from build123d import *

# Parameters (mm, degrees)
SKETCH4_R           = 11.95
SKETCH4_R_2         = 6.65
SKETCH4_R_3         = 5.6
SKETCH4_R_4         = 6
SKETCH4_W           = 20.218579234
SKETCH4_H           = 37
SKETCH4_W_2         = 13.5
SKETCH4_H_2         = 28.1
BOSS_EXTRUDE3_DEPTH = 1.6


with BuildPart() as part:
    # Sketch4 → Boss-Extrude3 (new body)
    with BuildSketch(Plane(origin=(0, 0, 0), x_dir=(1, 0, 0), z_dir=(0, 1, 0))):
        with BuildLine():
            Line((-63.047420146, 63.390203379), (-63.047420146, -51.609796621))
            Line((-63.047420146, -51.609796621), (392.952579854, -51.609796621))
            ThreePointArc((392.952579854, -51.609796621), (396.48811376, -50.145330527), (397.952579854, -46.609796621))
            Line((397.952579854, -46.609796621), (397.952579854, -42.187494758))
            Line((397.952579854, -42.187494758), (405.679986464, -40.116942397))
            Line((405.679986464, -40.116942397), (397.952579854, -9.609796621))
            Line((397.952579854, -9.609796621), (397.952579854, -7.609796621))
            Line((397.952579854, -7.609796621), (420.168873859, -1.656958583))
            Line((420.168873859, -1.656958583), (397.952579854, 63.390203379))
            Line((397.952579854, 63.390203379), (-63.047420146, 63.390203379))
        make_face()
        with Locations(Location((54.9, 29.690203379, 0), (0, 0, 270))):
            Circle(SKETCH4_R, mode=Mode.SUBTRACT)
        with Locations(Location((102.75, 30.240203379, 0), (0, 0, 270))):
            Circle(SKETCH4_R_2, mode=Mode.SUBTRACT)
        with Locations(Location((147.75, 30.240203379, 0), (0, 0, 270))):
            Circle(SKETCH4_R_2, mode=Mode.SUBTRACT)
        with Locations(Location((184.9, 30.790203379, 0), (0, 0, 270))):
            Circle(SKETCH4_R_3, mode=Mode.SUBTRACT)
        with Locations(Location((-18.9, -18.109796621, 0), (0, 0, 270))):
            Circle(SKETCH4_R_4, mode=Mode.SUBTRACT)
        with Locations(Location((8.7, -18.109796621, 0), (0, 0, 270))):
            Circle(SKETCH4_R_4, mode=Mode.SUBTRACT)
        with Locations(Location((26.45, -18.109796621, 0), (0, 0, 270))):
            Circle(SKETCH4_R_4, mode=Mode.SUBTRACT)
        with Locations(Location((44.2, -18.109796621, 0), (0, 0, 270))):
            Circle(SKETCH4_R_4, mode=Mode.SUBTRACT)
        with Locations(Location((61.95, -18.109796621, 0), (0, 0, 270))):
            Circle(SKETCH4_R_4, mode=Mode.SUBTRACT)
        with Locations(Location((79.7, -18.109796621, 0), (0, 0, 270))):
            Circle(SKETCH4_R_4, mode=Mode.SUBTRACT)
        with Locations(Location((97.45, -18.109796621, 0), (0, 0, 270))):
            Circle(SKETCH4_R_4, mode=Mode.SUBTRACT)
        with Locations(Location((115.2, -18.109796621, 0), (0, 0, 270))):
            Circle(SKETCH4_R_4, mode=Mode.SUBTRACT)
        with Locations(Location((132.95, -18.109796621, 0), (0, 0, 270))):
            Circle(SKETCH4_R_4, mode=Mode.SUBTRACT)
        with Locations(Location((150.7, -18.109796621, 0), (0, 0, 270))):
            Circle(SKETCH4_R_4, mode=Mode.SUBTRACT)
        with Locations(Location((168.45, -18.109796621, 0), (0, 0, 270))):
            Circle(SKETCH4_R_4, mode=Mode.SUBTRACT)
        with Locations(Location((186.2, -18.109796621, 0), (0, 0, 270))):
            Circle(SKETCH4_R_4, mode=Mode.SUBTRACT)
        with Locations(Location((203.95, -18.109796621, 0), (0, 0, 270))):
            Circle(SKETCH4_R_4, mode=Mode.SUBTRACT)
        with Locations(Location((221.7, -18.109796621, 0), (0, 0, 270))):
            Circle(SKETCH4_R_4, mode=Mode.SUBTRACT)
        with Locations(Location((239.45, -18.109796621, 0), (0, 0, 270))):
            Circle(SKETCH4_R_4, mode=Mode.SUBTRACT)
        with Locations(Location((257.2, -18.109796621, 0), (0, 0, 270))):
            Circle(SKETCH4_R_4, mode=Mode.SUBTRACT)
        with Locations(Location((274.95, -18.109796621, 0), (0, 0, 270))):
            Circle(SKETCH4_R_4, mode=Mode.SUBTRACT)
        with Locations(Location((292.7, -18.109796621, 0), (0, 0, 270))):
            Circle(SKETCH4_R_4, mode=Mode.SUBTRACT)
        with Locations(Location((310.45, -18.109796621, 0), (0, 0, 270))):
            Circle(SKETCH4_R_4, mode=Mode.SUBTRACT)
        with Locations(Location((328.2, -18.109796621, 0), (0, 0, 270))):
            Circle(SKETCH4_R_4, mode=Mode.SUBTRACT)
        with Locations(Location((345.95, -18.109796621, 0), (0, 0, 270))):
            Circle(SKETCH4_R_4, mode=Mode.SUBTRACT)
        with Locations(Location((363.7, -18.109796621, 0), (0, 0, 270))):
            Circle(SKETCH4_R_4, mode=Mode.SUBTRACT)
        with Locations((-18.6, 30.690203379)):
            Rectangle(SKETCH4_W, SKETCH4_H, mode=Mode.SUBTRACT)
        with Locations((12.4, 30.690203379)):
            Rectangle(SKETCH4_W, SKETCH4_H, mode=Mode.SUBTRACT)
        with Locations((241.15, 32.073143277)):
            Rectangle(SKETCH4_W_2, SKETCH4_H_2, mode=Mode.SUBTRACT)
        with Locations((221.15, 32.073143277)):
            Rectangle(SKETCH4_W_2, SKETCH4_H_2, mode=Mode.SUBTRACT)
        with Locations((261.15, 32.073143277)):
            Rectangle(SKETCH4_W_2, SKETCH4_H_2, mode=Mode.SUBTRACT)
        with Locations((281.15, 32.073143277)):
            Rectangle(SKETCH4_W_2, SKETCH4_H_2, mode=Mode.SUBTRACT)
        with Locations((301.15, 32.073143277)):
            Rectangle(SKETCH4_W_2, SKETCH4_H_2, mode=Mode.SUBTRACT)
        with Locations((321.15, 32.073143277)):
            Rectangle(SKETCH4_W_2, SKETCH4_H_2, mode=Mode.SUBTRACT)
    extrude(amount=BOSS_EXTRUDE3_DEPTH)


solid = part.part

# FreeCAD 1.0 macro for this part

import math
import FreeCAD as App
import Part
import Sketcher
Q = App.Units.Quantity


def add_polygon(sketch, points):
    """Adds a closed chain of lines whose ends are joined by coincident constraints."""
    first, n = sketch.GeometryCount, len(points)
    for a, b in zip(points, points[1:] + points[:1]):
        sketch.addGeometry(Part.LineSegment(App.Vector(*a, 0), App.Vector(*b, 0)), False)
    for i in range(n):
        sketch.addConstraint(Sketcher.Constraint("Coincident", first + i, 2, first + (i + 1) % n, 1))

doc = App.newDocument("Part")
body = doc.addObject("PartDesign::Body", "Body")

sketch1 = body.newObject("Sketcher::SketchObject", "Sketch")
sketch1.AttachmentSupport = (doc.getObject("XZ_Plane"), [""])
sketch1.MapMode = "FlatFace"
sketch1.addGeometry(Part.LineSegment(App.Vector(-63, -63.4, 0), App.Vector(-63, 51.6, 0)), False)
sketch1.addGeometry(Part.LineSegment(App.Vector(-63, 51.6, 0), App.Vector(393, 51.6, 0)), False)
sketch1.addGeometry(Part.ArcOfCircle(Part.Circle(App.Vector(393, 46.6, 0), App.Vector(0, 0, 1), 5), math.radians(0), math.radians(90)), False)
sketch1.addGeometry(Part.LineSegment(App.Vector(398, 46.6, 0), App.Vector(398, 42.2, 0)), False)
sketch1.addGeometry(Part.LineSegment(App.Vector(398, 42.2, 0), App.Vector(405.7, 40.1, 0)), False)
sketch1.addGeometry(Part.LineSegment(App.Vector(405.7, 40.1, 0), App.Vector(398, 9.6, 0)), False)
sketch1.addGeometry(Part.LineSegment(App.Vector(398, 9.6, 0), App.Vector(398, 7.6, 0)), False)
sketch1.addGeometry(Part.LineSegment(App.Vector(398, 7.6, 0), App.Vector(420.2, 1.7, 0)), False)
sketch1.addGeometry(Part.LineSegment(App.Vector(420.2, 1.7, 0), App.Vector(398, -63.4, 0)), False)
sketch1.addGeometry(Part.LineSegment(App.Vector(398, -63.4, 0), App.Vector(-63, -63.4, 0)), False)
sketch1.addGeometry(Part.Circle(App.Vector(-18.9, 18.1, 0), App.Vector(0, 0, 1), 6), False)
sketch1.addGeometry(Part.Circle(App.Vector(8.7, 18.1, 0), App.Vector(0, 0, 1), 6), False)
sketch1.addGeometry(Part.Circle(App.Vector(26.4, 18.1, 0), App.Vector(0, 0, 1), 6), False)
sketch1.addGeometry(Part.Circle(App.Vector(44.2, 18.1, 0), App.Vector(0, 0, 1), 6), False)
sketch1.addGeometry(Part.Circle(App.Vector(62, 18.1, 0), App.Vector(0, 0, 1), 6), False)
sketch1.addGeometry(Part.Circle(App.Vector(79.7, 18.1, 0), App.Vector(0, 0, 1), 6), False)
sketch1.addGeometry(Part.Circle(App.Vector(97.5, 18.1, 0), App.Vector(0, 0, 1), 6), False)
sketch1.addGeometry(Part.Circle(App.Vector(115.2, 18.1, 0), App.Vector(0, 0, 1), 6), False)
sketch1.addGeometry(Part.Circle(App.Vector(132.9, 18.1, 0), App.Vector(0, 0, 1), 6), False)
sketch1.addGeometry(Part.Circle(App.Vector(150.7, 18.1, 0), App.Vector(0, 0, 1), 6), False)
sketch1.addGeometry(Part.Circle(App.Vector(168.4, 18.1, 0), App.Vector(0, 0, 1), 6), False)
sketch1.addGeometry(Part.Circle(App.Vector(186.2, 18.1, 0), App.Vector(0, 0, 1), 6), False)
sketch1.addGeometry(Part.Circle(App.Vector(203.9, 18.1, 0), App.Vector(0, 0, 1), 6), False)
sketch1.addGeometry(Part.Circle(App.Vector(221.7, 18.1, 0), App.Vector(0, 0, 1), 6), False)
sketch1.addGeometry(Part.Circle(App.Vector(239.4, 18.1, 0), App.Vector(0, 0, 1), 6), False)
sketch1.addGeometry(Part.Circle(App.Vector(257.2, 18.1, 0), App.Vector(0, 0, 1), 6), False)
sketch1.addGeometry(Part.Circle(App.Vector(274.9, 18.1, 0), App.Vector(0, 0, 1), 6), False)
sketch1.addGeometry(Part.Circle(App.Vector(292.7, 18.1, 0), App.Vector(0, 0, 1), 6), False)
sketch1.addGeometry(Part.Circle(App.Vector(310.4, 18.1, 0), App.Vector(0, 0, 1), 6), False)
sketch1.addGeometry(Part.Circle(App.Vector(328.2, 18.1, 0), App.Vector(0, 0, 1), 6), False)
sketch1.addGeometry(Part.Circle(App.Vector(345.9, 18.1, 0), App.Vector(0, 0, 1), 6), False)
sketch1.addGeometry(Part.Circle(App.Vector(363.7, 18.1, 0), App.Vector(0, 0, 1), 6), False)
add_polygon(sketch1, [(-8.5, -12.2), (-28.7, -12.2), (-28.7, -49.2), (-8.5, -49.2)])
add_polygon(sketch1, [(22.5, -12.2), (2.3, -12.2), (2.3, -49.2), (22.5, -49.2)])
sketch1.addGeometry(Part.Circle(App.Vector(54.9, -29.7, 0), App.Vector(0, 0, 1), 11.9), False)
sketch1.addGeometry(Part.Circle(App.Vector(102.8, -30.2, 0), App.Vector(0, 0, 1), 6.7), False)
sketch1.addGeometry(Part.Circle(App.Vector(147.8, -30.2, 0), App.Vector(0, 0, 1), 6.7), False)
sketch1.addGeometry(Part.Circle(App.Vector(184.9, -30.8, 0), App.Vector(0, 0, 1), 5.6), False)
add_polygon(sketch1, [(227.9, -18), (214.4, -18), (214.4, -46.1), (227.9, -46.1)])
add_polygon(sketch1, [(247.9, -18), (234.4, -18), (234.4, -46.1), (247.9, -46.1)])
add_polygon(sketch1, [(267.9, -18), (254.4, -18), (254.4, -46.1), (267.9, -46.1)])
add_polygon(sketch1, [(287.9, -18), (274.4, -18), (274.4, -46.1), (287.9, -46.1)])
add_polygon(sketch1, [(307.9, -18), (294.4, -18), (294.4, -46.1), (307.9, -46.1)])
add_polygon(sketch1, [(327.9, -18), (314.4, -18), (314.4, -46.1), (327.9, -46.1)])
sketch1.addConstraint([
    Sketcher.Constraint("Coincident", 0, 2, 1, 1),
    Sketcher.Constraint("Tangent", 1, 2, 2, 2),
    Sketcher.Constraint("Tangent", 2, 1, 3, 1),
    Sketcher.Constraint("Coincident", 3, 2, 4, 1),
    Sketcher.Constraint("Coincident", 4, 2, 5, 1),
    Sketcher.Constraint("Coincident", 5, 2, 6, 1),
    Sketcher.Constraint("Coincident", 6, 2, 7, 1),
    Sketcher.Constraint("Coincident", 7, 2, 8, 1),
    Sketcher.Constraint("Coincident", 8, 2, 9, 1),
    Sketcher.Constraint("Coincident", 9, 2, 0, 1),
    Sketcher.Constraint("Vertical", 0),
    Sketcher.Constraint("Horizontal", 1),
    Sketcher.Constraint("Vertical", 3),
    Sketcher.Constraint("Vertical", 6),
    Sketcher.Constraint("Horizontal", 9),
    Sketcher.Constraint("Horizontal", 32),
    Sketcher.Constraint("Vertical", 33),
    Sketcher.Constraint("Horizontal", 34),
    Sketcher.Constraint("Vertical", 35),
    Sketcher.Constraint("Horizontal", 36),
    Sketcher.Constraint("Vertical", 37),
    Sketcher.Constraint("Horizontal", 38),
    Sketcher.Constraint("Vertical", 39),
    Sketcher.Constraint("Horizontal", 44),
    Sketcher.Constraint("Vertical", 45),
    Sketcher.Constraint("Horizontal", 46),
    Sketcher.Constraint("Vertical", 47),
    Sketcher.Constraint("Horizontal", 48),
    Sketcher.Constraint("Vertical", 49),
    Sketcher.Constraint("Horizontal", 50),
    Sketcher.Constraint("Vertical", 51),
    Sketcher.Constraint("Horizontal", 52),
    Sketcher.Constraint("Vertical", 53),
    Sketcher.Constraint("Horizontal", 54),
    Sketcher.Constraint("Vertical", 55),
    Sketcher.Constraint("Horizontal", 56),
    Sketcher.Constraint("Vertical", 57),
    Sketcher.Constraint("Horizontal", 58),
    Sketcher.Constraint("Vertical", 59),
    Sketcher.Constraint("Horizontal", 60),
    Sketcher.Constraint("Vertical", 61),
    Sketcher.Constraint("Horizontal", 62),
    Sketcher.Constraint("Vertical", 63),
    Sketcher.Constraint("Horizontal", 64),
    Sketcher.Constraint("Vertical", 65),
    Sketcher.Constraint("Horizontal", 66),
    Sketcher.Constraint("Vertical", 67),
    Sketcher.Constraint("Equal", 10, 11),
    Sketcher.Constraint("Equal", 11, 12),
    Sketcher.Constraint("Equal", 12, 13),
    Sketcher.Constraint("Equal", 13, 14),
    Sketcher.Constraint("Equal", 14, 15),
    Sketcher.Constraint("Equal", 15, 16),
    Sketcher.Constraint("Equal", 16, 17),
    Sketcher.Constraint("Equal", 17, 18),
    Sketcher.Constraint("Equal", 18, 19),
    Sketcher.Constraint("Equal", 19, 20),
    Sketcher.Constraint("Equal", 20, 21),
    Sketcher.Constraint("Equal", 21, 22),
    Sketcher.Constraint("Equal", 22, 23),
    Sketcher.Constraint("Equal", 23, 24),
    Sketcher.Constraint("Equal", 24, 25),
    Sketcher.Constraint("Equal", 25, 26),
    Sketcher.Constraint("Equal", 26, 27),
    Sketcher.Constraint("Equal", 27, 28),
    Sketcher.Constraint("Equal", 28, 29),
    Sketcher.Constraint("Equal", 29, 30),
    Sketcher.Constraint("Equal", 30, 31),
    Sketcher.Constraint("Equal", 41, 42),
    Sketcher.Constraint("Parallel", 4, 7),
    Sketcher.Constraint("Horizontal", 10, 3, 11, 3),
    Sketcher.Constraint("Horizontal", 11, 3, 12, 3),
    Sketcher.Constraint("Horizontal", 12, 3, 13, 3),
    Sketcher.Constraint("Horizontal", 13, 3, 14, 3),
    Sketcher.Constraint("Horizontal", 14, 3, 15, 3),
    Sketcher.Constraint("Horizontal", 15, 3, 16, 3),
    Sketcher.Constraint("Horizontal", 16, 3, 17, 3),
    Sketcher.Constraint("Horizontal", 17, 3, 18, 3),
    Sketcher.Constraint("Horizontal", 18, 3, 19, 3),
    Sketcher.Constraint("Horizontal", 19, 3, 20, 3),
    Sketcher.Constraint("Horizontal", 20, 3, 21, 3),
    Sketcher.Constraint("Horizontal", 21, 3, 22, 3),
    Sketcher.Constraint("Horizontal", 22, 3, 23, 3),
    Sketcher.Constraint("Horizontal", 23, 3, 24, 3),
    Sketcher.Constraint("Horizontal", 24, 3, 25, 3),
    Sketcher.Constraint("Horizontal", 25, 3, 26, 3),
    Sketcher.Constraint("Horizontal", 26, 3, 27, 3),
    Sketcher.Constraint("Horizontal", 27, 3, 28, 3),
    Sketcher.Constraint("Horizontal", 28, 3, 29, 3),
    Sketcher.Constraint("Horizontal", 29, 3, 30, 3),
    Sketcher.Constraint("Horizontal", 30, 3, 31, 3),
    Sketcher.Constraint("Horizontal", 41, 3, 42, 3),
    Sketcher.Constraint("Horizontal", 35, 2, 36, 2),
    Sketcher.Constraint("Horizontal", 34, 2, 37, 2),
    Sketcher.Constraint("Horizontal", 47, 2, 48, 2),
    Sketcher.Constraint("Horizontal", 46, 2, 49, 2),
    Sketcher.Constraint("Horizontal", 51, 2, 52, 2),
    Sketcher.Constraint("Horizontal", 50, 2, 53, 2),
    Sketcher.Constraint("Horizontal", 55, 2, 56, 2),
    Sketcher.Constraint("Horizontal", 54, 2, 57, 2),
    Sketcher.Constraint("Horizontal", 59, 2, 60, 2),
    Sketcher.Constraint("Horizontal", 58, 2, 61, 2),
    Sketcher.Constraint("Horizontal", 63, 2, 64, 2),
    Sketcher.Constraint("Horizontal", 62, 2, 65, 2),
    Sketcher.Constraint("Vertical", 3, 2, 5, 2),
    Sketcher.Constraint("Vertical", 6, 2, 8, 2),
    Sketcher.Constraint("Equal", 34, 36),
    Sketcher.Constraint("Equal", 46, 48),
    Sketcher.Constraint("Equal", 50, 52),
    Sketcher.Constraint("Equal", 54, 56),
    Sketcher.Constraint("Equal", 58, 60),
    Sketcher.Constraint("Equal", 62, 64),
    Sketcher.Constraint("Diameter", 10, Q("12 mm")),
    Sketcher.Constraint("Radius", 2, Q("5 mm")),
    Sketcher.Constraint("Diameter", 40, Q("23.9 mm")),
    Sketcher.Constraint("Diameter", 41, Q("13.3 mm")),
    Sketcher.Constraint("Diameter", 43, Q("11.2 mm")),
    Sketcher.Constraint("DistanceX", 1, 1, 1, 2, Q("456 mm")),
    Sketcher.Constraint("DistanceY", 0, 1, 0, 2, Q("115 mm")),
    Sketcher.Constraint("DistanceY", 6, 2, 6, 1, Q("2 mm")),
    Sketcher.Constraint("DistanceY", 33, 2, 33, 1, Q("37 mm")),
    Sketcher.Constraint("Angle", 4, Q("-15 deg")),
    Sketcher.Constraint("Distance", 4, Q("8 mm")),
    Sketcher.Constraint("Distance", 7, Q("23 mm")),
    Sketcher.Constraint("DistanceX", 44, 2, 44, 1, Q("13.5 mm")),
    Sketcher.Constraint("DistanceY", 45, 2, 45, 1, Q("28.1 mm")),
    Sketcher.Constraint("DistanceX", 10, 3, -1, 1, Q("18.9 mm")),
    Sketcher.Constraint("DistanceX", -1, 1, 11, 3, Q("8.7 mm")),
    Sketcher.Constraint("DistanceX", -1, 1, 13, 3, Q("44.2 mm")),
    Sketcher.Constraint("DistanceX", -1, 1, 15, 3, Q("79.7 mm")),
    Sketcher.Constraint("DistanceX", -1, 1, 17, 3, Q("115.2 mm")),
    Sketcher.Constraint("DistanceX", -1, 1, 19, 3, Q("150.7 mm")),
    Sketcher.Constraint("DistanceX", -1, 1, 21, 3, Q("186.2 mm")),
    Sketcher.Constraint("DistanceX", -1, 1, 23, 3, Q("221.7 mm")),
    Sketcher.Constraint("DistanceX", -1, 1, 25, 3, Q("257.2 mm")),
    Sketcher.Constraint("DistanceX", -1, 1, 27, 3, Q("292.7 mm")),
    Sketcher.Constraint("DistanceX", -1, 1, 29, 3, Q("328.2 mm")),
    Sketcher.Constraint("DistanceX", -1, 1, 31, 3, Q("363.7 mm")),
    Sketcher.Constraint("DistanceX", -1, 1, 40, 3, Q("54.9 mm")),
    Sketcher.Constraint("DistanceX", -1, 1, 43, 3, Q("184.9 mm")),
    Sketcher.Constraint("DistanceX", -1, 1, 44, 2, Q("214.4 mm")),
    Sketcher.Constraint("DistanceX", -1, 1, 48, 2, Q("234.4 mm")),
    Sketcher.Constraint("DistanceX", -1, 1, 52, 2, Q("254.4 mm")),
    Sketcher.Constraint("DistanceX", -1, 1, 56, 2, Q("274.4 mm")),
    Sketcher.Constraint("DistanceX", -1, 1, 60, 2, Q("294.4 mm")),
    Sketcher.Constraint("DistanceX", -1, 1, 64, 2, Q("314.4 mm")),
    Sketcher.Constraint("DistanceX", -1, 1, 12, 3, Q("26.45 mm")),
    Sketcher.Constraint("DistanceX", -1, 1, 14, 3, Q("61.95 mm")),
    Sketcher.Constraint("DistanceX", -1, 1, 16, 3, Q("97.45 mm")),
    Sketcher.Constraint("DistanceX", -1, 1, 18, 3, Q("132.95 mm")),
    Sketcher.Constraint("DistanceX", -1, 1, 20, 3, Q("168.45 mm")),
    Sketcher.Constraint("DistanceX", -1, 1, 22, 3, Q("203.95 mm")),
    Sketcher.Constraint("DistanceX", -1, 1, 24, 3, Q("239.45 mm")),
    Sketcher.Constraint("DistanceX", -1, 1, 26, 3, Q("274.95 mm")),
    Sketcher.Constraint("DistanceX", -1, 1, 28, 3, Q("310.45 mm")),
    Sketcher.Constraint("DistanceX", -1, 1, 30, 3, Q("345.95 mm")),
    Sketcher.Constraint("DistanceX", -1, 1, 41, 3, Q("102.75 mm")),
    Sketcher.Constraint("DistanceX", -1, 1, 42, 3, Q("147.75 mm")),
    Sketcher.Constraint("DistanceY", 3, 2, 3, 1, Q("4.422302 mm")),
    Sketcher.Constraint("Distance", 5, Q("31.470601 mm")),
    Sketcher.Constraint("DistanceX", 32, 2, 32, 1, Q("20.218579 mm")),
    Sketcher.Constraint("DistanceX", -1, 1, 2, 3, Q("392.95258 mm")),
    Sketcher.Constraint("DistanceY", -1, 1, 7, 2, Q("1.656959 mm")),
    Sketcher.Constraint("DistanceX", 32, 2, -1, 1, Q("28.70929 mm")),
    Sketcher.Constraint("DistanceX", -1, 1, 36, 2, Q("2.29071 mm")),
    Sketcher.Constraint("DistanceY", -1, 1, 10, 3, Q("18.109797 mm")),
    Sketcher.Constraint("DistanceY", 40, 3, -1, 1, Q("29.690203 mm")),
    Sketcher.Constraint("DistanceY", 41, 3, -1, 1, Q("30.240203 mm")),
    Sketcher.Constraint("DistanceY", 43, 3, -1, 1, Q("30.790203 mm")),
    Sketcher.Constraint("DistanceY", 32, 2, -1, 1, Q("12.190203 mm")),
    Sketcher.Constraint("DistanceY", 44, 2, -1, 1, Q("18.023143 mm")),
])
pad1 = body.newObject("PartDesign::Pad", "Pad")
pad1.Profile = sketch1
pad1.Length = 1.6
pad1.Reversed = True

doc.recompute()
